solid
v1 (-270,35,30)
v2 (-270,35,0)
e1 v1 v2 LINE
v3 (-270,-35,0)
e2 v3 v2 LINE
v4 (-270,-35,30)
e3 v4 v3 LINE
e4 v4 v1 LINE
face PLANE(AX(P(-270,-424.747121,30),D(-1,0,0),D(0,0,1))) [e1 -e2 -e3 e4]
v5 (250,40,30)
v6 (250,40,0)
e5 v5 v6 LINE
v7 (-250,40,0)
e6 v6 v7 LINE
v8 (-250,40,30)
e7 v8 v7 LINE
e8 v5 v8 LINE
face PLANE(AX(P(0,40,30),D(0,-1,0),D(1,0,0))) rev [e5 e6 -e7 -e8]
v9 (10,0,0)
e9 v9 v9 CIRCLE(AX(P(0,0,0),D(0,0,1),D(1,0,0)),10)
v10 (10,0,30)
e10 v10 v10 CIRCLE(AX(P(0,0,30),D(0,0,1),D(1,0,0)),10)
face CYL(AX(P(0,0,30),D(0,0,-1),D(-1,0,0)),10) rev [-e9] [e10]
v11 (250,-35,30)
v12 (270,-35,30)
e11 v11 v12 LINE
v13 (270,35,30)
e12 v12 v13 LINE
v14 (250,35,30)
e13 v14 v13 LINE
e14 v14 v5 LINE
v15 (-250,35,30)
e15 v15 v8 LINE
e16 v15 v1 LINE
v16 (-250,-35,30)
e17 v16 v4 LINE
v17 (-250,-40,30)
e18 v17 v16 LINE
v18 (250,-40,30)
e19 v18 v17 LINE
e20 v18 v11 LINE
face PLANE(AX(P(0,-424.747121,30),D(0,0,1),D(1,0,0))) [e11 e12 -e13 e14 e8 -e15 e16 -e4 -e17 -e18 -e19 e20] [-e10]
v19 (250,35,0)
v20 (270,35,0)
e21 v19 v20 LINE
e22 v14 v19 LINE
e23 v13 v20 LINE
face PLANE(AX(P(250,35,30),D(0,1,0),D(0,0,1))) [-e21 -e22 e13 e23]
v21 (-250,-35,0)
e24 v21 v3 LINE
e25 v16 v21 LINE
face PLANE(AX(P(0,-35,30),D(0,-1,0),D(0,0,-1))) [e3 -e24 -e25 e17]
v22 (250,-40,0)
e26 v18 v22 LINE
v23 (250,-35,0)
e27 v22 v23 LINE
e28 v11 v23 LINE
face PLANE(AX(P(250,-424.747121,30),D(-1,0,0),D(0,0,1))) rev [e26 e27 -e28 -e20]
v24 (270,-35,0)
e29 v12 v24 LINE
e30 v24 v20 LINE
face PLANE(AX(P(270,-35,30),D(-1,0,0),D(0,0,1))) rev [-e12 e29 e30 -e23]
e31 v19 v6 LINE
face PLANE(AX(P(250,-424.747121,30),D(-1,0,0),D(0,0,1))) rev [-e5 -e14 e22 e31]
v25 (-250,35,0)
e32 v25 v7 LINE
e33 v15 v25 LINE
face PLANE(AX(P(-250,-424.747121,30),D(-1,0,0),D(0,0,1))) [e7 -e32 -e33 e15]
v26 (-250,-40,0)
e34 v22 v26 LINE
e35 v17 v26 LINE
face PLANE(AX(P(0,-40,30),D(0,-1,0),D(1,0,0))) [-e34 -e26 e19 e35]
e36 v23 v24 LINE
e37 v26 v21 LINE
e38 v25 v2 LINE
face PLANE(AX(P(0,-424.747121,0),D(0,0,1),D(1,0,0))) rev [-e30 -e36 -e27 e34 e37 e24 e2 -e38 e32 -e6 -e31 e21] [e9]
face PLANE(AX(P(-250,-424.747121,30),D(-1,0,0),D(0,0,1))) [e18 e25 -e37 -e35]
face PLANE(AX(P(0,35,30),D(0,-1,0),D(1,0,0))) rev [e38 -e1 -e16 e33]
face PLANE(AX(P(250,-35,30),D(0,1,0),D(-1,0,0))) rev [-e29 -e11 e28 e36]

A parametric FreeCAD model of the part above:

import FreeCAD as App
import Part
import Sketcher
from FreeCAD import Vector


def add_polygon(sketch, points):
    """Adds a closed chain of lines whose ends are joined by coincident constraints."""
    first, n = sketch.GeometryCount, len(points)
    for a, b in zip(points, points[1:] + points[:1]):
        sketch.addGeometry(Part.LineSegment(App.Vector(*a, 0), App.Vector(*b, 0)), False)
    for i in range(n):
        sketch.addConstraint(Sketcher.Constraint("Coincident", first + i, 2, first + (i + 1) % n, 1))

doc = App.newDocument("Part")
body = doc.addObject("PartDesign::Body", "Body")

# Sketch on XY plane
sketch1 = body.newObject("Sketcher::SketchObject", "Sketch")
sketch1.AttachmentSupport = (doc.getObject("XY_Plane"), [""])
sketch1.MapMode = "FlatFace"
add_polygon(sketch1, [(-250, -35), (-250, -40), (250, -40), (250, -35), (270, -35), (270, 35), (250, 35), (250, 40), (-250, 40), (-250, 35), (-270, 35), (-270, -35)])  # lines 0-11
sketch1.addGeometry(Part.Circle(Vector(0, 0, 0), Vector(0, 0, 1), 10), False)  # 12
sketch1.addConstraint(Sketcher.Constraint("Vertical", 0))
sketch1.addConstraint(Sketcher.Constraint("Horizontal", 1))
sketch1.addConstraint(Sketcher.Constraint("Vertical", 2))
sketch1.addConstraint(Sketcher.Constraint("Horizontal", 3))
sketch1.addConstraint(Sketcher.Constraint("Vertical", 4))
sketch1.addConstraint(Sketcher.Constraint("Horizontal", 5))
sketch1.addConstraint(Sketcher.Constraint("Vertical", 6))
sketch1.addConstraint(Sketcher.Constraint("Horizontal", 7))
sketch1.addConstraint(Sketcher.Constraint("Vertical", 8))
sketch1.addConstraint(Sketcher.Constraint("Horizontal", 9))
sketch1.addConstraint(Sketcher.Constraint("Vertical", 10))
sketch1.addConstraint(Sketcher.Constraint("Horizontal", 11))
sketch1.addConstraint(Sketcher.Constraint("Coincident", 12, 3, -1, 1))
sketch1.addConstraint(Sketcher.Constraint("Symmetric", 0, 2, 6, 2, -1, 1))
sketch1.addConstraint(Sketcher.Constraint("Symmetric", 2, 2, 8, 2, -1, 1))
sketch1.addConstraint(Sketcher.Constraint("Symmetric", 4, 2, 10, 2, -1, 1))
sketch1.addConstraint(Sketcher.Constraint("Symmetric", 5, 2, 8, 2, -2))
sketch1.addConstraint(Sketcher.Constraint("Diameter", 12, 20.0))
sketch1.addConstraint(Sketcher.Constraint("DistanceX", 1, 1, 1, 2, 500.0))
sketch1.addConstraint(Sketcher.Constraint("DistanceX", 3, 1, 3, 2, 20.0))
sketch1.addConstraint(Sketcher.Constraint("DistanceY", 0, 2, 0, 1, 5.0))
sketch1.addConstraint(Sketcher.Constraint("DistanceY", 4, 1, 4, 2, 70.0))
pad1 = body.newObject("PartDesign::Pad", "Pad")
pad1.Profile = sketch1
pad1.Length = 30

doc.recompute()
